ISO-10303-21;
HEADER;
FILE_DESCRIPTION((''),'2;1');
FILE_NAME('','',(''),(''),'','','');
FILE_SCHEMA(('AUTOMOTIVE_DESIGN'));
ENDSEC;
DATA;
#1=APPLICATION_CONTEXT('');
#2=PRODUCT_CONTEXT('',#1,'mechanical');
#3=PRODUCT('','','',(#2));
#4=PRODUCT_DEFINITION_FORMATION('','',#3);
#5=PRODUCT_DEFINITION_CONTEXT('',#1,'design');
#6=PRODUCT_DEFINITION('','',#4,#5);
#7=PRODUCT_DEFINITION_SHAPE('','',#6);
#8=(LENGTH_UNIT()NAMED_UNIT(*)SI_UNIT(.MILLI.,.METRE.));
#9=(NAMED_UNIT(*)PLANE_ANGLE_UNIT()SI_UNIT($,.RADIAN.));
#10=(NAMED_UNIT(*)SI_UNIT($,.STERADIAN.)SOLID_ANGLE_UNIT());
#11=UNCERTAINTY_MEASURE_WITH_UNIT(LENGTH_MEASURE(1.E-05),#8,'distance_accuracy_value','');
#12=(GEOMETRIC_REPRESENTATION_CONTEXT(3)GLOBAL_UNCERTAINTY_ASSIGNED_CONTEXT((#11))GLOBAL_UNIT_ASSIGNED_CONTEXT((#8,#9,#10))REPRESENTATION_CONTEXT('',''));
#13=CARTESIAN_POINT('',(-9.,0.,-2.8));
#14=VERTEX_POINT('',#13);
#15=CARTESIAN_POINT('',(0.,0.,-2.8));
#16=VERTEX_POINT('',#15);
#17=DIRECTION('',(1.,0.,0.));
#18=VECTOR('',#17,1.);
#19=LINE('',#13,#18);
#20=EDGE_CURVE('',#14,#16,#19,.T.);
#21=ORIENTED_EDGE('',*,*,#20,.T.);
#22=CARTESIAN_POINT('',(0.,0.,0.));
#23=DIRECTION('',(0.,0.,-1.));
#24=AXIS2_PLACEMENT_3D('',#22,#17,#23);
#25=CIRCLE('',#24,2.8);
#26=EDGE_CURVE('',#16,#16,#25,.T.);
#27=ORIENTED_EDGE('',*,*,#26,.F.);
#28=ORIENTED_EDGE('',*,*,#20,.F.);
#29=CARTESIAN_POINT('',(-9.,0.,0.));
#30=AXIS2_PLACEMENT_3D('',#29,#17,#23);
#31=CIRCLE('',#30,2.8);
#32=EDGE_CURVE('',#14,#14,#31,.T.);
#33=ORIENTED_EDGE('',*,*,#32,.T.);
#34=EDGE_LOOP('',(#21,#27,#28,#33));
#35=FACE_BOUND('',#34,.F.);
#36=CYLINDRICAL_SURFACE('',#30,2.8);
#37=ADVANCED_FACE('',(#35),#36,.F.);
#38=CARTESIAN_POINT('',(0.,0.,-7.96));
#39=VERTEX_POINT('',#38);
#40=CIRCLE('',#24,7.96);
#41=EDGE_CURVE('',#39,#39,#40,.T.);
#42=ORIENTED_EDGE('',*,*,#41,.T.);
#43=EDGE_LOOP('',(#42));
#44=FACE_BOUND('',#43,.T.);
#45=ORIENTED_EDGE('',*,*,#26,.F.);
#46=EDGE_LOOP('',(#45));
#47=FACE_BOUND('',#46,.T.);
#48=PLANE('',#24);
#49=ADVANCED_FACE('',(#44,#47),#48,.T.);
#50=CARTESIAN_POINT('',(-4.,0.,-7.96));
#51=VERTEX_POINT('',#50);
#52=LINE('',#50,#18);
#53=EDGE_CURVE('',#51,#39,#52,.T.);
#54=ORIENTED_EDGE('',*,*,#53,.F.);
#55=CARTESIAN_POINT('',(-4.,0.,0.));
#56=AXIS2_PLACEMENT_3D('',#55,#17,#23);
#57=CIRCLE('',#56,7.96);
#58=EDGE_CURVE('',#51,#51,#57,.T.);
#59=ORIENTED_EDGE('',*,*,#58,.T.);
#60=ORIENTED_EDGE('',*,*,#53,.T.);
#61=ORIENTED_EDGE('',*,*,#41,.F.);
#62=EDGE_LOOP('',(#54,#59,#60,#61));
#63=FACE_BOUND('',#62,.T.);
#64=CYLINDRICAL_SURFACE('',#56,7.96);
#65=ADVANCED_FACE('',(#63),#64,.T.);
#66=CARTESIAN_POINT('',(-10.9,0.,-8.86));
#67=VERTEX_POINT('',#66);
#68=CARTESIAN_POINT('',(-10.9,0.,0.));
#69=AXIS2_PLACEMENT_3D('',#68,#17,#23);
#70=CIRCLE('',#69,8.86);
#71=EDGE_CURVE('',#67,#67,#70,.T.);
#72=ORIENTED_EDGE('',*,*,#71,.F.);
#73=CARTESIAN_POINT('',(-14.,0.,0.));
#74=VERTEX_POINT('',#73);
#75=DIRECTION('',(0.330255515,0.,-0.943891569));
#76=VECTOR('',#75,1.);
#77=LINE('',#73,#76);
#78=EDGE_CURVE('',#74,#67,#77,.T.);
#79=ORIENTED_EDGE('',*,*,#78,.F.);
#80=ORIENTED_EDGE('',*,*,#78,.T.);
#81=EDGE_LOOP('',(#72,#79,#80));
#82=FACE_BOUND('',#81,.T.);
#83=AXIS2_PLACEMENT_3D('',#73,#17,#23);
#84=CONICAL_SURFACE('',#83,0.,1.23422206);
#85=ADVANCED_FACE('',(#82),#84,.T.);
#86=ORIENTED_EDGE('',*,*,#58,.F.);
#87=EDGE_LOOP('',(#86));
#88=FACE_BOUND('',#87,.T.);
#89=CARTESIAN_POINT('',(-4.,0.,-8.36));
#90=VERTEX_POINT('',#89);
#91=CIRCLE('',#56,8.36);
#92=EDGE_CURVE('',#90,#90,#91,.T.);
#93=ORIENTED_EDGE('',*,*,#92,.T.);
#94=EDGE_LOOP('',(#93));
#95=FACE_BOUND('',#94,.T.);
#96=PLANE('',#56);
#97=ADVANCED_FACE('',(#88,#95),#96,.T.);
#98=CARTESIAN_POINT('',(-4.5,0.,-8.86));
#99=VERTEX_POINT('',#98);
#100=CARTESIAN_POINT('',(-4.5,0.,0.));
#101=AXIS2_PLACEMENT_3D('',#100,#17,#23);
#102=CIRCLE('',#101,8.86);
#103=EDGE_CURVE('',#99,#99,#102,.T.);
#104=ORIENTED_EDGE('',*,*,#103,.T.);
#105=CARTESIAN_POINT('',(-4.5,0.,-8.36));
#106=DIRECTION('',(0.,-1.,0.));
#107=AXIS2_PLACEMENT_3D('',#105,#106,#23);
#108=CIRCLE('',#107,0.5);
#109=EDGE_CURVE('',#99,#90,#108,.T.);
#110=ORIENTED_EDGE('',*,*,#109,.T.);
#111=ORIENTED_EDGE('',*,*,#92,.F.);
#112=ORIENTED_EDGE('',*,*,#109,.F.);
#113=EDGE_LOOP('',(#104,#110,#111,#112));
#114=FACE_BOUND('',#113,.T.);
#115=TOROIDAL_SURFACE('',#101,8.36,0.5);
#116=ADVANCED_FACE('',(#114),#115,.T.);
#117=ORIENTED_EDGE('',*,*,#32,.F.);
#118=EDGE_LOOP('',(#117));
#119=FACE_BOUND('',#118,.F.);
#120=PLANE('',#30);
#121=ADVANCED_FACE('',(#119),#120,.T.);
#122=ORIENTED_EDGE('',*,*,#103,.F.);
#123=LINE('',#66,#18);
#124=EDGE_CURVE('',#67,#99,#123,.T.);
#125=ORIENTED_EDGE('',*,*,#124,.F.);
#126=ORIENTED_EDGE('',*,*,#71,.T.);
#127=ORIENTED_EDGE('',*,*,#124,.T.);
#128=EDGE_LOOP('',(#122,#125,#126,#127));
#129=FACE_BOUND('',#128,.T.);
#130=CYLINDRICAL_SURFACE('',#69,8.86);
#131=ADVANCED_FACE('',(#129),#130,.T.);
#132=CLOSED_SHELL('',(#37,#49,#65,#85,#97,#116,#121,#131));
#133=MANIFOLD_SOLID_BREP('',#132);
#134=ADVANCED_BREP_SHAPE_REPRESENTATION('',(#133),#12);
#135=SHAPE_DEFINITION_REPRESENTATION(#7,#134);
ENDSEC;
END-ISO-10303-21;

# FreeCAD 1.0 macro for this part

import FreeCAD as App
import Part
import Sketcher

V = App.Vector


def edges_at(feature, points):
    """Names of the edges that pass closest to the given points."""
    edges = feature.Shape.Edges
    near = lambda p: min(range(len(edges)), key=lambda i: edges[i].distToShape(Part.Vertex(*p))[0])
    return sorted({f"Edge{near(p) + 1}" for p in points})


def add_polygon(sketch, points):
    """Adds a closed chain of lines whose ends are joined by coincident constraints."""
    first, n = sketch.GeometryCount, len(points)
    for a, b in zip(points, points[1:] + points[:1]):
        sketch.addGeometry(Part.LineSegment(App.Vector(*a, 0), App.Vector(*b, 0)), False)
    for i in range(n):
        sketch.addConstraint(Sketcher.Constraint("Coincident", first + i, 2, first + (i + 1) % n, 1))

doc = App.newDocument("Part")
body = doc.addObject("PartDesign::Body", "Body")

sketch1 = doc.addObject("Sketcher::SketchObject", "Sketch")
body.addObject(sketch1)
sketch1.AttachmentSupport = (doc.XZ_Plane, [""])
sketch1.MapMode = "FlatFace"
add_polygon(sketch1, [(-10.9, -8.9), (-14, 0), (-9, 0), (-9, -2.8), (0, -2.8), (0, -8), (-4, -8), (-4, -8.9)])
sketch1.addConstraint(Sketcher.Constraint("Horizontal", 1))
sketch1.addConstraint(Sketcher.Constraint("Vertical", 2))
sketch1.addConstraint(Sketcher.Constraint("Horizontal", 3))
sketch1.addConstraint(Sketcher.Constraint("Vertical", 4))
sketch1.addConstraint(Sketcher.Constraint("Horizontal", 5))
sketch1.addConstraint(Sketcher.Constraint("Vertical", 6))
sketch1.addConstraint(Sketcher.Constraint("Horizontal", 7))
sketch1.addConstraint(Sketcher.Constraint("PointOnObject", 0, 2, -1))
sketch1.addConstraint(Sketcher.Constraint("PointOnObject", 3, 2, -2))
sketch1.addConstraint(Sketcher.Constraint("DistanceX", 3, 1, 3, 2, 9.0))
sketch1.addConstraint(Sketcher.Constraint("DistanceX", 5, 2, 5, 1, 4.0))
sketch1.addConstraint(Sketcher.Constraint("DistanceX", 7, 2, 7, 1, 6.9))
sketch1.addConstraint(Sketcher.Constraint("DistanceX", 0, 2, -1, 1, 14.0))
sketch1.addConstraint(Sketcher.Constraint("DistanceY", 2, 2, 2, 1, 2.8))
sketch1.addConstraint(Sketcher.Constraint("DistanceY", 6, 2, 6, 1, 0.9))
sketch1.addConstraint(Sketcher.Constraint("DistanceY", 4, 2, 4, 1, 5.16))
revolution = doc.addObject("PartDesign::Revolution", "Revolution")
body.addObject(revolution)
revolution.Profile = sketch1
revolution.ReferenceAxis = (sketch1, ["H_Axis"])
revolution.Angle = 360
doc.recompute()

fillet = doc.addObject("PartDesign::Fillet", "Fillet")
body.addObject(fillet)
fillet.Base = (revolution, edges_at(revolution, [(-4, 0, 8.86)]))
fillet.Radius = 0.5

doc.recompute()
